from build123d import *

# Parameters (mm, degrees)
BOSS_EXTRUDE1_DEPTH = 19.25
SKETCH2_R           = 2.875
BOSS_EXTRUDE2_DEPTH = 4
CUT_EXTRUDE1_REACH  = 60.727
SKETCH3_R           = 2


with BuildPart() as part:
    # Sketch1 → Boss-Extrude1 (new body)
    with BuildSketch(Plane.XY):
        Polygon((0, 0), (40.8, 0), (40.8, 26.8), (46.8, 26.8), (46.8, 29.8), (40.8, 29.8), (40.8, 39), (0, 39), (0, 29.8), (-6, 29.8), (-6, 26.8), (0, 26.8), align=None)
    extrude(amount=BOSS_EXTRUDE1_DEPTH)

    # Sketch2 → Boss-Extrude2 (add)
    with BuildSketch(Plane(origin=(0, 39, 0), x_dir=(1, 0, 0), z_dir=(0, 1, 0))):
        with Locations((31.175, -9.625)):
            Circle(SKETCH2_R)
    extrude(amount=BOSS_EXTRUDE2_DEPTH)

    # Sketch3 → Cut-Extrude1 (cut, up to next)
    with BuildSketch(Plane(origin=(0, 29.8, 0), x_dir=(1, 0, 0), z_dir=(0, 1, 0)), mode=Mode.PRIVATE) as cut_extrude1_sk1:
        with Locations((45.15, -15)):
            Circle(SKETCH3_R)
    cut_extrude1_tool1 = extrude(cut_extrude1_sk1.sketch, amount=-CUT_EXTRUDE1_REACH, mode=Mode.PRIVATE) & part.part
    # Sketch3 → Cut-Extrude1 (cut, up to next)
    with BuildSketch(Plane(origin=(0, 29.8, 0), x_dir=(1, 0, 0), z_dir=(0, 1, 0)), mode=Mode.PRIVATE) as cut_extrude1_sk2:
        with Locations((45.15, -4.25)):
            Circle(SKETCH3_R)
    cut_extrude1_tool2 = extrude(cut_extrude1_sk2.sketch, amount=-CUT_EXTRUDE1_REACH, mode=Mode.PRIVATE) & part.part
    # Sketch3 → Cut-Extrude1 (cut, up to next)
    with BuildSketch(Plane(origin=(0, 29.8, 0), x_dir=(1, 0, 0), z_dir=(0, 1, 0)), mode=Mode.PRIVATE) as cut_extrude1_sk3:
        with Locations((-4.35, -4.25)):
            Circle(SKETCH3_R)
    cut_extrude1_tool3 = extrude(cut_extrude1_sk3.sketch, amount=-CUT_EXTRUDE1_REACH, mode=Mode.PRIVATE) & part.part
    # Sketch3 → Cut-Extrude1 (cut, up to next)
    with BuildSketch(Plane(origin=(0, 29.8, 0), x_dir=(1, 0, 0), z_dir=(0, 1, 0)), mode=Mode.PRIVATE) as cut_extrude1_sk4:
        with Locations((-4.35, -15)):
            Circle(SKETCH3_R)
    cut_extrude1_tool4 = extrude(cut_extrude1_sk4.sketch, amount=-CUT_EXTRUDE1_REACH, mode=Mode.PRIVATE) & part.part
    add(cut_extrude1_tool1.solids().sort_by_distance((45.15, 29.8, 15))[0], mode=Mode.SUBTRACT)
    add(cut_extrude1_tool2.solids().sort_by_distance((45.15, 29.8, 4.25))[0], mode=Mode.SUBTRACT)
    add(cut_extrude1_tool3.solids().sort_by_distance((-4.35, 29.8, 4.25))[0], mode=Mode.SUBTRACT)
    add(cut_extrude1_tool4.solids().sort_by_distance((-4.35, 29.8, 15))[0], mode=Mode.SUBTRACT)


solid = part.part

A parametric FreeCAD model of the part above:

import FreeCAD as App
import Part
import Sketcher
from FreeCAD import Vector
Q = App.Units.Quantity

doc = App.newDocument("Part")
body = doc.addObject("PartDesign::Body", "Body")

# Sketch on XY plane
sketch1 = body.newObject("Sketcher::SketchObject", "Sketch")
sketch1.AttachmentSupport = (doc.getObject("XY_Plane"), [""])
sketch1.MapMode = "FlatFace"
sketch1.addGeometry([
    Part.LineSegment(Vector(0, 0, 0), Vector(40.8, 0, 0)),  # 0
    Part.LineSegment(Vector(40.8, 0, 0), Vector(40.8, 26.8, 0)),  # 1
    Part.LineSegment(Vector(40.8, 26.8, 0), Vector(46.8, 26.8, 0)),  # 2
    Part.LineSegment(Vector(46.8, 26.8, 0), Vector(46.8, 29.8, 0)),  # 3
    Part.LineSegment(Vector(46.8, 29.8, 0), Vector(40.8, 29.8, 0)),  # 4
    Part.LineSegment(Vector(40.8, 29.8, 0), Vector(40.8, 39, 0)),  # 5
    Part.LineSegment(Vector(40.8, 39, 0), Vector(0, 39, 0)),  # 6
    Part.LineSegment(Vector(0, 39, 0), Vector(0, 29.8, 0)),  # 7
    Part.LineSegment(Vector(0, 29.8, 0), Vector(-6, 29.8, 0)),  # 8
    Part.LineSegment(Vector(-6, 29.8, 0), Vector(-6, 26.8, 0)),  # 9
    Part.LineSegment(Vector(-6, 26.8, 0), Vector(0, 26.8, 0)),  # 10
    Part.LineSegment(Vector(0, 26.8, 0), Vector(0, 0, 0)),  # 11
], False)
sketch1.addConstraint([
    Sketcher.Constraint("Coincident", 0, 2, 1, 1),
    Sketcher.Constraint("Coincident", 1, 2, 2, 1),
    Sketcher.Constraint("Coincident", 2, 2, 3, 1),
    Sketcher.Constraint("Coincident", 3, 2, 4, 1),
    Sketcher.Constraint("Coincident", 4, 2, 5, 1),
    Sketcher.Constraint("Coincident", 5, 2, 6, 1),
    Sketcher.Constraint("Coincident", 6, 2, 7, 1),
    Sketcher.Constraint("Coincident", 7, 2, 8, 1),
    Sketcher.Constraint("Coincident", 8, 2, 9, 1),
    Sketcher.Constraint("Coincident", 9, 2, 10, 1),
    Sketcher.Constraint("Coincident", 10, 2, 11, 1),
    Sketcher.Constraint("Coincident", 11, 2, 0, 1),
    Sketcher.Constraint("Horizontal", 0),
    Sketcher.Constraint("Vertical", 1),
    Sketcher.Constraint("Horizontal", 2),
    Sketcher.Constraint("Vertical", 3),
    Sketcher.Constraint("Horizontal", 4),
    Sketcher.Constraint("Vertical", 5),
    Sketcher.Constraint("Horizontal", 6),
    Sketcher.Constraint("Vertical", 7),
    Sketcher.Constraint("Horizontal", 8),
    Sketcher.Constraint("Vertical", 9),
    Sketcher.Constraint("Horizontal", 10),
    Sketcher.Constraint("Vertical", 11),
    Sketcher.Constraint("Coincident", 11, 2, -1, 1),
    Sketcher.Constraint("PointOnObject", 6, 2, -2),
    Sketcher.Constraint("Horizontal", 4, 2, 7, 2),
    Sketcher.Constraint("Horizontal", 2, 2, 9, 2),
    Sketcher.Constraint("Vertical", 1, 2, 4, 2),
    Sketcher.Constraint("Equal", 4, 8),
    Sketcher.Constraint("DistanceX", 2, 1, 2, 2, Q("6 mm")),
    Sketcher.Constraint("DistanceY", 3, 1, 3, 2, Q("3 mm")),
    Sketcher.Constraint("DistanceX", 0, 1, 0, 2, Q("40.8 mm")),
    Sketcher.Constraint("DistanceY", 1, 1, 1, 2, Q("26.8 mm")),
    Sketcher.Constraint("DistanceY", 5, 1, 5, 2, Q("9.2 mm")),
])
pad1 = body.newObject("PartDesign::Pad", "Pad")
pad1.Profile = sketch1
pad1.Length = 19.25

# Sketch on XZ plane
sketch2 = body.newObject("Sketcher::SketchObject", "Sketch001")
sketch2.AttachmentSupport = (doc.getObject("XZ_Plane"), [""])
sketch2.MapMode = "FlatFace"
sketch2.AttachmentOffset = App.Placement(Vector(0, 0, -39), App.Rotation())
sketch2.addGeometry(Part.Circle(Vector(31.2, 9.6, 0), Vector(0, 0, 1), 2.9), False)
sketch2.addConstraint([
    Sketcher.Constraint("Diameter", 0, Q("5.75 mm")),
    Sketcher.Constraint("DistanceX", -1, 1, 0, 3, Q("31.175 mm")),
    Sketcher.Constraint("DistanceY", -1, 1, 0, 3, Q("9.625 mm")),
])
pad2 = body.newObject("PartDesign::Pad", "Pad001")
pad2.Profile = sketch2
pad2.Length = 4
pad2.Reversed = True

# Sketch on XZ plane
sketch3 = body.newObject("Sketcher::SketchObject", "Sketch002")
sketch3.AttachmentSupport = (doc.getObject("XZ_Plane"), [""])
sketch3.MapMode = "FlatFace"
sketch3.AttachmentOffset = App.Placement(Vector(0, 0, -29.8), App.Rotation())
sketch3.addGeometry(Part.Circle(Vector(45.1, 15, 0), Vector(0, 0, 1), 2), False)
sketch3.addConstraint([
    Sketcher.Constraint("Diameter", 0, Q("4 mm")),
    Sketcher.Constraint("DistanceY", -1, 1, 0, 3, Q("15 mm")),
    Sketcher.Constraint("DistanceX", -1, 1, 0, 3, Q("45.15 mm")),
])
pocket1 = body.newObject("PartDesign::Pocket", "Pocket")
pocket1.Profile = sketch3
pocket1.Type = "UpToFirst"
pocket1.Reversed = True

# Sketch on XZ plane
sketch4 = body.newObject("Sketcher::SketchObject", "Sketch003")
sketch4.AttachmentSupport = (doc.getObject("XZ_Plane"), [""])
sketch4.MapMode = "FlatFace"
sketch4.AttachmentOffset = App.Placement(Vector(0, 0, -29.8), App.Rotation())
sketch4.addGeometry(Part.Circle(Vector(45.1, 4.2, 0), Vector(0, 0, 1), 2), False)
sketch4.addConstraint([
    Sketcher.Constraint("Diameter", 0, Q("4 mm")),
    Sketcher.Constraint("DistanceX", -1, 1, 0, 3, Q("45.15 mm")),
    Sketcher.Constraint("DistanceY", -1, 1, 0, 3, Q("4.25 mm")),
])
pocket2 = body.newObject("PartDesign::Pocket", "Pocket001")
pocket2.Profile = sketch4
pocket2.Type = "UpToFirst"
pocket2.Reversed = True

# Sketch on XZ plane
sketch5 = body.newObject("Sketcher::SketchObject", "Sketch004")
sketch5.AttachmentSupport = (doc.getObject("XZ_Plane"), [""])
sketch5.MapMode = "FlatFace"
sketch5.AttachmentOffset = App.Placement(Vector(0, 0, -29.8), App.Rotation())
sketch5.addGeometry(Part.Circle(Vector(-4.3, 4.2, 0), Vector(0, 0, 1), 2), False)
sketch5.addConstraint([
    Sketcher.Constraint("Diameter", 0, Q("4 mm")),
    Sketcher.Constraint("DistanceX", 0, 3, -1, 1, Q("4.35 mm")),
    Sketcher.Constraint("DistanceY", -1, 1, 0, 3, Q("4.25 mm")),
])
pocket3 = body.newObject("PartDesign::Pocket", "Pocket002")
pocket3.Profile = sketch5
pocket3.Type = "UpToFirst"
pocket3.Reversed = True

# Sketch on XZ plane
sketch6 = body.newObject("Sketcher::SketchObject", "Sketch005")
sketch6.AttachmentSupport = (doc.getObject("XZ_Plane"), [""])
sketch6.MapMode = "FlatFace"
sketch6.AttachmentOffset = App.Placement(Vector(0, 0, -29.8), App.Rotation())
sketch6.addGeometry(Part.Circle(Vector(-4.3, 15, 0), Vector(0, 0, 1), 2), False)
sketch6.addConstraint([
    Sketcher.Constraint("Diameter", 0, Q("4 mm")),
    Sketcher.Constraint("DistanceY", -1, 1, 0, 3, Q("15 mm")),
    Sketcher.Constraint("DistanceX", 0, 3, -1, 1, Q("4.35 mm")),
])
pocket4 = body.newObject("PartDesign::Pocket", "Pocket003")
pocket4.Profile = sketch6
pocket4.Type = "UpToFirst"
pocket4.Reversed = True

doc.recompute()
